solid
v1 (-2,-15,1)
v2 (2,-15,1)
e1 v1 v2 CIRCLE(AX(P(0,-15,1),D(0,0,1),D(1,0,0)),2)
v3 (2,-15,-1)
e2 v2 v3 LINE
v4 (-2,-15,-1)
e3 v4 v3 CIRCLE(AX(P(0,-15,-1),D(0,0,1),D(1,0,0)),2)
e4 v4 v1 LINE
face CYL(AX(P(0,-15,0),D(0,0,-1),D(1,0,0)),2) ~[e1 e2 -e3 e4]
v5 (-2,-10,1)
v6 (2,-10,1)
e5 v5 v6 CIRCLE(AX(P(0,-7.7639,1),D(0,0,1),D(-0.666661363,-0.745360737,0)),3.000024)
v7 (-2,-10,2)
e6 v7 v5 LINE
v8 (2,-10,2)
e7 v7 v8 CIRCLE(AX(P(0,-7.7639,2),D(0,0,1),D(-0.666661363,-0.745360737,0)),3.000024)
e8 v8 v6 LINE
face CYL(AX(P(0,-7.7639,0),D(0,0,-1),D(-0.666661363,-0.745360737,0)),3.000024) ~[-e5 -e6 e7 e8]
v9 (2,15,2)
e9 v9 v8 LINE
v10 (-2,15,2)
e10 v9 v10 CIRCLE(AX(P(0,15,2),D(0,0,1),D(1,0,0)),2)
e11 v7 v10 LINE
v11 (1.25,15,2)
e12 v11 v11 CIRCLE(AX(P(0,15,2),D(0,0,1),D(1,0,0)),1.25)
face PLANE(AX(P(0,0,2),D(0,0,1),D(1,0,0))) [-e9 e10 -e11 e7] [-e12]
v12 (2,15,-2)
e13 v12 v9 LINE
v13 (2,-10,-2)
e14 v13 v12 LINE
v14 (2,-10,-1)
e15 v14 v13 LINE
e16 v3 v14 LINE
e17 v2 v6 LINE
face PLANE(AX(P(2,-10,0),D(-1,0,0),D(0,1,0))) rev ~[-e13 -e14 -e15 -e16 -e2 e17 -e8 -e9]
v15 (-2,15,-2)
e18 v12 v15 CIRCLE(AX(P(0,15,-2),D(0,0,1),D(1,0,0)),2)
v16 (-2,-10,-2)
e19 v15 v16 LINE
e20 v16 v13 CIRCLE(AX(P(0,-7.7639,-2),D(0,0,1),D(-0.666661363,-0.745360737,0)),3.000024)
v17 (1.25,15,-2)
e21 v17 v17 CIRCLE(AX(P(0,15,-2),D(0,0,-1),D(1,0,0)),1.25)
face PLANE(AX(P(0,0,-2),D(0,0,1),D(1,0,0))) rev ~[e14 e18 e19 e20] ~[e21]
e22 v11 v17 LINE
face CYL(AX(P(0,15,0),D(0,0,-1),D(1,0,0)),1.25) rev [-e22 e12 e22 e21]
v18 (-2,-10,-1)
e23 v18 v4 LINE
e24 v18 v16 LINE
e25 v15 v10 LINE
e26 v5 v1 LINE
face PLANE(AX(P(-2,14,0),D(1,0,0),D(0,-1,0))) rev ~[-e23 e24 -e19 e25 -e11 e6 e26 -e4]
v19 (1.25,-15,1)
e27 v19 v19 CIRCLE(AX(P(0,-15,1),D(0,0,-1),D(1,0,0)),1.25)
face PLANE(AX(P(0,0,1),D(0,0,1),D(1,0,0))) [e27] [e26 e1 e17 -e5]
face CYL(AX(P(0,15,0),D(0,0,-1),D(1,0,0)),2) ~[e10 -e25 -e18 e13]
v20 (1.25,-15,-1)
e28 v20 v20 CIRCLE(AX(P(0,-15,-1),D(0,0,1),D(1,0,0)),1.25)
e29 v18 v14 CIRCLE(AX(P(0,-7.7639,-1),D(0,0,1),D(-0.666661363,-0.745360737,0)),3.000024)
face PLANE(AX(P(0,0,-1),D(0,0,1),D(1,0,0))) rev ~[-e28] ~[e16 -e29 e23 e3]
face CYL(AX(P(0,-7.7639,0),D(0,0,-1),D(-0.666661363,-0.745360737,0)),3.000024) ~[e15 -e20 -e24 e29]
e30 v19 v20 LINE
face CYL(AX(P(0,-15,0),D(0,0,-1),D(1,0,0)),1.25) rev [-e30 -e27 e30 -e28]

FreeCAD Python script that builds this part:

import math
import FreeCAD as App
import Part
import Sketcher
from FreeCAD import Vector
Q = App.Units.Quantity

doc = App.newDocument("Part")
params = doc.addObject("Spreadsheet::Sheet", "Params")
for row, (alias, value) in enumerate([
    ("sketch1_radius", "2 mm"),
    ("sketch1_radius2", "3 mm"),
    ("sketch1_diameter", "2.5 mm"),
    ("sketch1_height", "25 mm"),
    ("pad1_length", "4 mm"),
    ("sketch2_diameter", "4 mm"),
    ("sketch2_diameter2", "2.5 mm"),
    ("pocket1_length", "2 mm"),
    ("sketch3_radius", "3 mm"),
    ("sketch3_radius2", "2 mm"),
    ("sketch3_diameter", "2.5 mm"),
    ("sketch3_height", "5 mm"),
    ("pad2_length", "2 mm"),
], start=1):
    params.set(f"A{row}", alias)
    params.set(f"B{row}", "=" + value)
    params.setAlias(f"B{row}", alias)

body = doc.addObject("PartDesign::Body", "Body")

sketch1 = doc.addObject("Sketcher::SketchObject", "Sketch")
body.addObject(sketch1)
sketch1.AttachmentSupport = (doc.XY_Plane, [""])
sketch1.MapMode = "FlatFace"
sketch1.addGeometry([
    Part.LineSegment(Vector(2, -10, 0), Vector(2, 15, 0)),
    Part.ArcOfCircle(Part.Circle(Vector(0, 15, 0), Vector(0, 0, 1), 2), math.radians(0), math.radians(180)),
    Part.LineSegment(Vector(-2, 15, 0), Vector(-2, -10, 0)),
    Part.ArcOfCircle(Part.Circle(Vector(0, -7.7639, 0), Vector(0, 0, 1), 3.000024), math.radians(-131.809907), math.radians(-48.190093)),
    Part.Circle(Vector(0, 15, 0), Vector(0, 0, 1), 1.25),
], False)
sketch1.addConstraint([
    Sketcher.Constraint("Tangent", 0, 2, 1, 1),
    Sketcher.Constraint("Tangent", 1, 2, 2, 1),
    Sketcher.Constraint("Coincident", 2, 2, 3, 1),
    Sketcher.Constraint("Coincident", 3, 2, 0, 1),
    Sketcher.Constraint("Vertical", 0),
    Sketcher.Constraint("Vertical", 2),
    Sketcher.Constraint("Coincident", 4, 3, 1, 3),
    Sketcher.Constraint("Symmetric", 2, 2, 3, 2, -2),
    Sketcher.Constraint("Radius", 1, Q("2 mm")),
    Sketcher.Constraint("Radius", 3, Q("3 mm")),
    Sketcher.Constraint("Diameter", 4, Q("2.5 mm")),
    Sketcher.Constraint("DistanceY", -1, 1, 1, 3, Q("15 mm")),
    Sketcher.Constraint("DistanceY", 0, 1, 0, 2, Q("25 mm")),
])
sketch1.setExpression("Constraints[8]", "Params.sketch1_radius")
sketch1.setExpression("Constraints[9]", "Params.sketch1_radius2")
sketch1.setExpression("Constraints[10]", "Params.sketch1_diameter")
sketch1.setExpression("Constraints[12]", "Params.sketch1_height")
pad1 = doc.addObject("PartDesign::Pad", "Pad")
body.addObject(pad1)
pad1.Profile = sketch1
pad1.setExpression("Length", "Params.pad1_length")
pad1.Midplane = True

sketch2 = doc.addObject("Sketcher::SketchObject", "Sketch001")
body.addObject(sketch2)
sketch2.AttachmentSupport = (doc.XY_Plane, [""])
sketch2.MapMode = "FlatFace"
sketch2.addGeometry([
    Part.Circle(Vector(0, -15, 0), Vector(0, 0, 1), 2),
    Part.Circle(Vector(0, -15, 0), Vector(0, 0, 1), 1.25),
], False)
sketch2.addConstraint([
    Sketcher.Constraint("Coincident", 1, 3, 0, 3),
    Sketcher.Constraint("PointOnObject", 0, 3, -2),
    Sketcher.Constraint("Diameter", 0, Q("4 mm")),
    Sketcher.Constraint("Diameter", 1, Q("2.5 mm")),
    Sketcher.Constraint("DistanceY", 0, 3, -1, 1, Q("15 mm")),
])
sketch2.setExpression("Constraints[2]", "Params.sketch2_diameter")
sketch2.setExpression("Constraints[3]", "Params.sketch2_diameter2")
pocket1 = doc.addObject("PartDesign::Pocket", "Pocket")
body.addObject(pocket1)
pocket1.Profile = sketch2
pocket1.setExpression("Length", "Params.pocket1_length")
pocket1.Midplane = True

sketch3 = doc.addObject("Sketcher::SketchObject", "Sketch002")
body.addObject(sketch3)
sketch3.AttachmentSupport = (doc.XY_Plane, [""])
sketch3.MapMode = "FlatFace"
sketch3.addGeometry([
    Part.ArcOfCircle(Part.Circle(Vector(0, -7.7639, 0), Vector(0, 0, 1), 3.000024), math.radians(-131.809907), math.radians(-48.190093)),
    Part.LineSegment(Vector(-2, -10, 0), Vector(-2, -15, 0)),
    Part.ArcOfCircle(Part.Circle(Vector(0, -15, 0), Vector(0, 0, 1), 2), math.radians(180), math.radians(360)),
    Part.LineSegment(Vector(2, -15, 0), Vector(2, -10, 0)),
    Part.Circle(Vector(0, -15, 0), Vector(0, 0, 1), 1.25),
], False)
sketch3.addConstraint([
    Sketcher.Constraint("Coincident", 0, 1, 1, 1),
    Sketcher.Constraint("Tangent", 1, 2, 2, 1),
    Sketcher.Constraint("Tangent", 2, 2, 3, 1),
    Sketcher.Constraint("Coincident", 3, 2, 0, 2),
    Sketcher.Constraint("Vertical", 1),
    Sketcher.Constraint("Vertical", 3),
    Sketcher.Constraint("Coincident", 4, 3, 2, 3),
    Sketcher.Constraint("Symmetric", 0, 1, 3, 2, -2),
    Sketcher.Constraint("Radius", 0, Q("3 mm")),
    Sketcher.Constraint("Radius", 2, Q("2 mm")),
    Sketcher.Constraint("Diameter", 4, Q("2.5 mm")),
    Sketcher.Constraint("DistanceY", 1, 2, 1, 1, Q("5 mm")),
    Sketcher.Constraint("DistanceY", 2, 3, -1, 1, Q("15 mm")),
])
sketch3.setExpression("Constraints[8]", "Params.sketch3_radius")
sketch3.setExpression("Constraints[9]", "Params.sketch3_radius2")
sketch3.setExpression("Constraints[10]", "Params.sketch3_diameter")
sketch3.setExpression("Constraints[11]", "Params.sketch3_height")
pad2 = doc.addObject("PartDesign::Pad", "Pad001")
body.addObject(pad2)
pad2.Profile = sketch3
pad2.setExpression("Length", "Params.pad2_length")
pad2.Midplane = True

doc.recompute()
